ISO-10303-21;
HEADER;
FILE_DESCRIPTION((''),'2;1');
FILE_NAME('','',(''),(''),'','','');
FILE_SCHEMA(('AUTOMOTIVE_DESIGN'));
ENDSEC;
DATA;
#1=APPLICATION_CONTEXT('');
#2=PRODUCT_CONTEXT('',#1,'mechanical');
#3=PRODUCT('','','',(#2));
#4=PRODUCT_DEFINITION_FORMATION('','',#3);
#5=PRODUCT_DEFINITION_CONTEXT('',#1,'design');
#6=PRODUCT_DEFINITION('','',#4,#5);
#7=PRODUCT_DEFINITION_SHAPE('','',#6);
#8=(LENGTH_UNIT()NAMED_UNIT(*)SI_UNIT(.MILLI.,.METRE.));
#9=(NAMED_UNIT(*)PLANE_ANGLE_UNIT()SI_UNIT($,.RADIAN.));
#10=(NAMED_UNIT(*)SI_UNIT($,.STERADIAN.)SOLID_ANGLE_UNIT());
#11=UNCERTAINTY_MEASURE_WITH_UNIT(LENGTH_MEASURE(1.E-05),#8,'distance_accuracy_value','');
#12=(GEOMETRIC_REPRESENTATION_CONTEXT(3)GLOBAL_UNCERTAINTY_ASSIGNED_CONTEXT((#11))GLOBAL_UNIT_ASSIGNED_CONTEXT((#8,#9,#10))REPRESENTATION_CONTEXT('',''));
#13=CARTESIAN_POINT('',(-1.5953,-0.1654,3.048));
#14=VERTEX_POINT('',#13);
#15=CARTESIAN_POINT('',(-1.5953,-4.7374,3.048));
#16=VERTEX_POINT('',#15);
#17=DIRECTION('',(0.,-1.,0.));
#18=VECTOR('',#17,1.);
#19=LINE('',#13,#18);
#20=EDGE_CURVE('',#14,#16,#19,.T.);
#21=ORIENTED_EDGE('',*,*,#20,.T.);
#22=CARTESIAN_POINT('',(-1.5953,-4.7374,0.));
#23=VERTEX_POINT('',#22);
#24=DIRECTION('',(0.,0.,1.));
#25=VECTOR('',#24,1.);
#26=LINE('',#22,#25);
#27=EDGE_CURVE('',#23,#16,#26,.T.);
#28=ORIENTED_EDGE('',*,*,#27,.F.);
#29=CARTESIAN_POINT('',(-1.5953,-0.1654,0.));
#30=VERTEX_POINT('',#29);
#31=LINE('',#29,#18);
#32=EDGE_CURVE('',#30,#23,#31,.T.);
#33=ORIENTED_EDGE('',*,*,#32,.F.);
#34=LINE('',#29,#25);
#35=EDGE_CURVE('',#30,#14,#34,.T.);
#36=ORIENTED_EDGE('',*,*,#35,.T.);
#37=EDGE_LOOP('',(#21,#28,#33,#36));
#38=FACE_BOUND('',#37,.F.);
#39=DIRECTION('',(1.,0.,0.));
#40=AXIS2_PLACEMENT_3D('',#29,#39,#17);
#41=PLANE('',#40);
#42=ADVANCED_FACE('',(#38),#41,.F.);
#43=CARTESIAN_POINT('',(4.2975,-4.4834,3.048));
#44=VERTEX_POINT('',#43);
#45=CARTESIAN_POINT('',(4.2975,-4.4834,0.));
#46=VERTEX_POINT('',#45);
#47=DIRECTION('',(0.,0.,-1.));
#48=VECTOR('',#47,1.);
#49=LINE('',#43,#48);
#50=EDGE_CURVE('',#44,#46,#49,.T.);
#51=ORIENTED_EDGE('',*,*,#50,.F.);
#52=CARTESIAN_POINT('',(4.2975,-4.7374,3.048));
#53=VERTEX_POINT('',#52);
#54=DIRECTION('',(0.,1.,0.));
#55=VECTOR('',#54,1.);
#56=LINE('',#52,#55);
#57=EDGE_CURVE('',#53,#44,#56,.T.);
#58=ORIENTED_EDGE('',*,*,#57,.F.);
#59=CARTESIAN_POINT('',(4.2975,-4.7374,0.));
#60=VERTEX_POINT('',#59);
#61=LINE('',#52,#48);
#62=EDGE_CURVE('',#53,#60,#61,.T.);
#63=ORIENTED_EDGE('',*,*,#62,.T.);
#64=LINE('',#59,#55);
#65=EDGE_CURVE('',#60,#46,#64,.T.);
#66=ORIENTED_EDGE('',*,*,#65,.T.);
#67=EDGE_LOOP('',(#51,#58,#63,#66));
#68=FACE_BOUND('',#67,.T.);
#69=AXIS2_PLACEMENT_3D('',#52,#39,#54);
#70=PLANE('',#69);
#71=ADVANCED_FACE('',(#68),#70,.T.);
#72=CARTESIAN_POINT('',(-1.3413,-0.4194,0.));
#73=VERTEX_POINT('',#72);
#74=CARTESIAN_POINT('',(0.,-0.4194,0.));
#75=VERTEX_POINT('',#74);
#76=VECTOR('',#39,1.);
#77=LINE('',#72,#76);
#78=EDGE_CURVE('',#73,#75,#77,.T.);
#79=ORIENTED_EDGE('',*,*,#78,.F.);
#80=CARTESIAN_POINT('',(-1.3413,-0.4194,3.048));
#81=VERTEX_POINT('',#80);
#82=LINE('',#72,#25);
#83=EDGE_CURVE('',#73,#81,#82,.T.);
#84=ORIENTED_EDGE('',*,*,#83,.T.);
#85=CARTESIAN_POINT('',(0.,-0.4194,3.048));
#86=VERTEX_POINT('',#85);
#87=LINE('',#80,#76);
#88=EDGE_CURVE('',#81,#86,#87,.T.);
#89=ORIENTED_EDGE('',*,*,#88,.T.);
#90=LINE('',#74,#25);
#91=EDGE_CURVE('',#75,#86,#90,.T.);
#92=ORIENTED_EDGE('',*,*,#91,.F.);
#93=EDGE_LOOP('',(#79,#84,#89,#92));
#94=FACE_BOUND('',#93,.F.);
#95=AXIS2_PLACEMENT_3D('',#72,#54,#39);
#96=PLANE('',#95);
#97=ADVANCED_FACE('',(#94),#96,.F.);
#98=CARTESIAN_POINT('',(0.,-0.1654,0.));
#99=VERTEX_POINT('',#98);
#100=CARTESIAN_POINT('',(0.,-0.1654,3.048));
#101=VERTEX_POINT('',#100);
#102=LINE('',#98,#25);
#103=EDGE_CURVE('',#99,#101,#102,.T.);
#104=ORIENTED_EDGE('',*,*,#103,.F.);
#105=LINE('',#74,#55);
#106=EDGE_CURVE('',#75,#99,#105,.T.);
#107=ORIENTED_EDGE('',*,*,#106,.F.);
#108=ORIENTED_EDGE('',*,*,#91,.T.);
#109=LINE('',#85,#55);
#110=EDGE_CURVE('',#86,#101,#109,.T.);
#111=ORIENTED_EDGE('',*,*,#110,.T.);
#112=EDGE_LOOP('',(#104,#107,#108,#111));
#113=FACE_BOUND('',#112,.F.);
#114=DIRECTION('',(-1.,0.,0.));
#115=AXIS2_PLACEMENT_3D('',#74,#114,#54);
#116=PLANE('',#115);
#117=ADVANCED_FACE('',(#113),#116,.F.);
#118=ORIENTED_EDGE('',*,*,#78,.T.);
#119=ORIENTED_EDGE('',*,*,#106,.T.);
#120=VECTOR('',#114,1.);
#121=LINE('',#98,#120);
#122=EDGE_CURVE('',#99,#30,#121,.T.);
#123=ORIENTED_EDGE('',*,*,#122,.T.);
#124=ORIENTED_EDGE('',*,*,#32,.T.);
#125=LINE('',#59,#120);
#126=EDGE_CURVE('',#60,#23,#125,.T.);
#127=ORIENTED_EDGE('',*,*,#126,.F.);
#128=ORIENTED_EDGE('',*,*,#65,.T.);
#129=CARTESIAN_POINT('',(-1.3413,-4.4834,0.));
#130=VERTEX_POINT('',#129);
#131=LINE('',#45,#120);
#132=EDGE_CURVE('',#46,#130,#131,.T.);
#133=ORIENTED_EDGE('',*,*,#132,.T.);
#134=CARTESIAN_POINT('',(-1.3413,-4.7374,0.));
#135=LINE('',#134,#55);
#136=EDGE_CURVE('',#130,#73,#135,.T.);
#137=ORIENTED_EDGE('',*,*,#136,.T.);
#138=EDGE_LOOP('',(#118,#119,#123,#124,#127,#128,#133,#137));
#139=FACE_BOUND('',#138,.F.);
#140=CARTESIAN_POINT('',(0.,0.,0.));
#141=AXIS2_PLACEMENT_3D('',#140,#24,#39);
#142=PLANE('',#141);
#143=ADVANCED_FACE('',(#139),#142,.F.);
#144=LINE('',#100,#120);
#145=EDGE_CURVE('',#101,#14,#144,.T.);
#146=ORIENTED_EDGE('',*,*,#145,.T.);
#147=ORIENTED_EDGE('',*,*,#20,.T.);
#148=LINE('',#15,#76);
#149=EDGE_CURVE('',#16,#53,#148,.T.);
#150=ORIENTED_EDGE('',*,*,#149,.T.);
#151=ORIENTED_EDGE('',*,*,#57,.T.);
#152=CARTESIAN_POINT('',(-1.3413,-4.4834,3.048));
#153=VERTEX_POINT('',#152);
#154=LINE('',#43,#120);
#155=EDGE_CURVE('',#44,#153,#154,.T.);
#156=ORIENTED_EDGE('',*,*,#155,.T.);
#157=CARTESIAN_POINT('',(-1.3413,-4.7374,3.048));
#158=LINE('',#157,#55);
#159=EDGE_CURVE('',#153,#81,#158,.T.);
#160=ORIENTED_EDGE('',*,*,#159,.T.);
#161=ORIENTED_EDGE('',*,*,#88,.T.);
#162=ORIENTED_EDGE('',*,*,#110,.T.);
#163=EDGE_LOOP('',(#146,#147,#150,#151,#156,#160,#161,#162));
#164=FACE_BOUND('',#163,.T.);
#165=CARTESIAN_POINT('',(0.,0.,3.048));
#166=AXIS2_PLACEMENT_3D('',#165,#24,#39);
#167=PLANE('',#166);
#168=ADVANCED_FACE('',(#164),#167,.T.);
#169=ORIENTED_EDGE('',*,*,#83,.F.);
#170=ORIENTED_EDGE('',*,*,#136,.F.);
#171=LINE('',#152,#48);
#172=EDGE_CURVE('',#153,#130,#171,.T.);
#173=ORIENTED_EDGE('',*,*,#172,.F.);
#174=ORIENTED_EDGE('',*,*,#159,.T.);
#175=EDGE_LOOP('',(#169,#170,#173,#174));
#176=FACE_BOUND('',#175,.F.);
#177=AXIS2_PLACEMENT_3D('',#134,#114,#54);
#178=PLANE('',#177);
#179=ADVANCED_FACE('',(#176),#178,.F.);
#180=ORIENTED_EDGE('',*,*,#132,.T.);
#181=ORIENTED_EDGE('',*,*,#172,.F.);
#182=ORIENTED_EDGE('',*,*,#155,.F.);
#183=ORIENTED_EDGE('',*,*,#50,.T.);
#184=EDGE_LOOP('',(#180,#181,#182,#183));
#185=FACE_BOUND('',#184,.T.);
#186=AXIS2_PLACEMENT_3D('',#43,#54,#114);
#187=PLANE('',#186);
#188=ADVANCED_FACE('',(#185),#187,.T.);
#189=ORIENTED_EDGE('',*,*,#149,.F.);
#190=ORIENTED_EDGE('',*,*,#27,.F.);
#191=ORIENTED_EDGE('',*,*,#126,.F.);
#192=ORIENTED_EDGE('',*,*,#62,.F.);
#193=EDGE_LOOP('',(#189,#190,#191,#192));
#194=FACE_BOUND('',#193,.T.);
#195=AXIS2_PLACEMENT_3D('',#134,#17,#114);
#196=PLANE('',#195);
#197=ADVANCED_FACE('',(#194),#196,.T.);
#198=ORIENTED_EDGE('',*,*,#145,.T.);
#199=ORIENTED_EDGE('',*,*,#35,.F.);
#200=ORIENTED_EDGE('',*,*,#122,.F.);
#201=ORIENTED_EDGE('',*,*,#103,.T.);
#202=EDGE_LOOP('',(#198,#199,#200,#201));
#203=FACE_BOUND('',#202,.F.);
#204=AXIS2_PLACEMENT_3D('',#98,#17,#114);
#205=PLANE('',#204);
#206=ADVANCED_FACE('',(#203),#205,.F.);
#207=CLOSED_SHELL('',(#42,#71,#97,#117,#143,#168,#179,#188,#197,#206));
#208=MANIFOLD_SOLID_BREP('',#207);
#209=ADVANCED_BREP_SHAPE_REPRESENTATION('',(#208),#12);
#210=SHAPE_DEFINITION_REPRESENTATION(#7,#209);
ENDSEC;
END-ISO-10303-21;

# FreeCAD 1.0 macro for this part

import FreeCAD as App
import Part
import Sketcher
Q = App.Units.Quantity


def add_polygon(sketch, points):
    """Adds a closed chain of lines whose ends are joined by coincident constraints."""
    first, n = sketch.GeometryCount, len(points)
    for a, b in zip(points, points[1:] + points[:1]):
        sketch.addGeometry(Part.LineSegment(App.Vector(*a, 0), App.Vector(*b, 0)), False)
    for i in range(n):
        sketch.addConstraint(Sketcher.Constraint("Coincident", first + i, 2, first + (i + 1) % n, 1))

doc = App.newDocument("Part")
body = doc.addObject("PartDesign::Body", "Body")

sketch1 = body.newObject("Sketcher::SketchObject", "Sketch")
sketch1.AttachmentSupport = (doc.getObject("XY_Plane"), [""])
sketch1.MapMode = "FlatFace"
add_polygon(sketch1, [(-1.34, -4.74), (-1.34, -0.42), (0, -0.42), (0, -0.17), (-1.6, -0.17), (-1.6, -4.74)])
sketch1.addConstraint(Sketcher.Constraint("Vertical", 0))
sketch1.addConstraint(Sketcher.Constraint("Horizontal", 1))
sketch1.addConstraint(Sketcher.Constraint("Vertical", 2))
sketch1.addConstraint(Sketcher.Constraint("Horizontal", 3))
sketch1.addConstraint(Sketcher.Constraint("Vertical", 4))
sketch1.addConstraint(Sketcher.Constraint("Horizontal", 5))
sketch1.addConstraint(Sketcher.Constraint("PointOnObject", 1, 2, -2))
sketch1.addConstraint(Sketcher.Constraint("Equal", 5, 2))
sketch1.addConstraint(Sketcher.Constraint("DistanceX", 5, 1, 5, 2, Q("0.01 in")))
sketch1.addConstraint(Sketcher.Constraint("DistanceY", 4, 2, 4, 1, Q("0.18 in")))
sketch1.addConstraint(Sketcher.Constraint("DistanceX", 1, 1, 1, 2, Q("0.0528 in")))
sketch1.addConstraint(Sketcher.Constraint("DistanceY", 0, 2, -1, 1, Q("0.0165 in")))
pad1 = body.newObject("PartDesign::Pad", "Pad")
pad1.Profile = sketch1
pad1.Length = Q("0.12 in")

sketch2 = body.newObject("Sketcher::SketchObject", "Sketch001")
sketch2.AttachmentSupport = (doc.getObject("XY_Plane"), [""])
sketch2.MapMode = "FlatFace"
sketch2.AttachmentOffset = App.Placement(App.Vector(0, 0, 0.12 * 25.4), App.Rotation())
add_polygon(sketch2, [(-1.34, -4.48), (-1.34, -4.74), (4.3, -4.74), (4.3, -4.48)])
sketch2.addConstraint(Sketcher.Constraint("Vertical", 0))
sketch2.addConstraint(Sketcher.Constraint("Horizontal", 1))
sketch2.addConstraint(Sketcher.Constraint("Vertical", 2))
sketch2.addConstraint(Sketcher.Constraint("Horizontal", 3))
sketch2.addConstraint(Sketcher.Constraint("DistanceY", 0, 2, 0, 1, Q("0.01 in")))
sketch2.addConstraint(Sketcher.Constraint("DistanceX", 1, 1, 1, 2, Q("0.222 in")))
sketch2.addConstraint(Sketcher.Constraint("DistanceX", 0, 2, -1, 1, Q("0.0528 in")))
sketch2.addConstraint(Sketcher.Constraint("DistanceY", 0, 2, -1, 1, Q("0.1865 in")))
pad2 = body.newObject("PartDesign::Pad", "Pad001")
pad2.Profile = sketch2
pad2.Length = Q("0.12 in")
pad2.Reversed = True

doc.recompute()
